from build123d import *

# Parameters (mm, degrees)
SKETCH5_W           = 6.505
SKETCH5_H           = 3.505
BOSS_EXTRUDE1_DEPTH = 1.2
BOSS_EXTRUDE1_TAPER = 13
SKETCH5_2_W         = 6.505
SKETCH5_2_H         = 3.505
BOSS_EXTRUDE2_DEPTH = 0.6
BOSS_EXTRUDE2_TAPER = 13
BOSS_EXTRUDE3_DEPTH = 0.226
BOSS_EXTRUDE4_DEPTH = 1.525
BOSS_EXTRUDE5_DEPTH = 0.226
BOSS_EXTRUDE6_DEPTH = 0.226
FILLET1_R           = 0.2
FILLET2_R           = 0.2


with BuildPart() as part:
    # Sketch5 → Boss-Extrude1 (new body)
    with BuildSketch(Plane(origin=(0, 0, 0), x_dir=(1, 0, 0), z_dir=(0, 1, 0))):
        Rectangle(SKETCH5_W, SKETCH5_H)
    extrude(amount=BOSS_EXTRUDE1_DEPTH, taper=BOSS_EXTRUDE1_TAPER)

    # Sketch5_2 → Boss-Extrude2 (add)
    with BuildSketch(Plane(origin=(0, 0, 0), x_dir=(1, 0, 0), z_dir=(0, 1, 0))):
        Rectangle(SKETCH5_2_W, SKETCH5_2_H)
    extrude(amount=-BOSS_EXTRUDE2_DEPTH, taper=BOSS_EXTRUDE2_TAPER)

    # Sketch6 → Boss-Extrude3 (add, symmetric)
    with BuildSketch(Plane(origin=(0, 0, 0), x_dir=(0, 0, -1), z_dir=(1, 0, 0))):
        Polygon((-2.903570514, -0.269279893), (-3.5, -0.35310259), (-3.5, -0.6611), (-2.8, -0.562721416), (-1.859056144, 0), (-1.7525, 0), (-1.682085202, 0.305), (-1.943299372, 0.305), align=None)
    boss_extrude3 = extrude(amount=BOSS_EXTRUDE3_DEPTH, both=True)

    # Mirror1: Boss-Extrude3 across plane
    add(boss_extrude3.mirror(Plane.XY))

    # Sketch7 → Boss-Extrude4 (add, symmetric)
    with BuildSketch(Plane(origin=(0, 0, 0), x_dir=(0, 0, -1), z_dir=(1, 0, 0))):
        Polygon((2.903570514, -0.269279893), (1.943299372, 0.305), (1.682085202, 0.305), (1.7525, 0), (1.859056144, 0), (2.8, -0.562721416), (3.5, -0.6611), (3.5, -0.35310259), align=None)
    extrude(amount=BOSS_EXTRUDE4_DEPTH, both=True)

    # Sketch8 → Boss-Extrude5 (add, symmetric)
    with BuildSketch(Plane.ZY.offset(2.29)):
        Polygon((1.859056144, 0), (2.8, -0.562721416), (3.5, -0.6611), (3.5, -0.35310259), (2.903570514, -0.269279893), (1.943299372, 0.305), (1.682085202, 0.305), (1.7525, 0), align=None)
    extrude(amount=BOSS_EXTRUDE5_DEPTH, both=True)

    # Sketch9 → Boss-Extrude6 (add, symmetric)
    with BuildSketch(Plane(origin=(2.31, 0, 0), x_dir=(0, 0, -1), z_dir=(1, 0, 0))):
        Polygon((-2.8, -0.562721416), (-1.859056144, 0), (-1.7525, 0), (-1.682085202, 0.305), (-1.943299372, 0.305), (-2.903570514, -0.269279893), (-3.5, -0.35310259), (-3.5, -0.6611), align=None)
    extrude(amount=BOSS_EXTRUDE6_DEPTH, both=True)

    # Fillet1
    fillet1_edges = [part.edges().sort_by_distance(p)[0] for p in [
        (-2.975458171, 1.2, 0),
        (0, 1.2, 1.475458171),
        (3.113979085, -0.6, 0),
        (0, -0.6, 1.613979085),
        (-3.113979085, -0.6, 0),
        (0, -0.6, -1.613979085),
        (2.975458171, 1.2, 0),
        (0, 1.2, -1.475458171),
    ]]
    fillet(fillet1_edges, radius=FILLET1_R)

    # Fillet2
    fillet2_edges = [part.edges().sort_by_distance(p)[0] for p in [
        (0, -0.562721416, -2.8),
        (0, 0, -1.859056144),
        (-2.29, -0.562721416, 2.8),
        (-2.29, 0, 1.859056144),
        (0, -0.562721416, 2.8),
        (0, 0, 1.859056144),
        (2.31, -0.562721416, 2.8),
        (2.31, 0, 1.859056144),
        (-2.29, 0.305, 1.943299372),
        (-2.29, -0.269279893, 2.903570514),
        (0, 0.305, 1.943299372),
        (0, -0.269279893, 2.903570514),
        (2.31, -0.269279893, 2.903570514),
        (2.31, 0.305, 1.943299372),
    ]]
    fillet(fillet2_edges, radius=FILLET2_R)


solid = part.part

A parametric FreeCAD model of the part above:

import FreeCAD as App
import Part
import Sketcher

V = App.Vector
Q = App.Units.Quantity


def edges_at(feature, points):
    """Names of the edges that pass closest to the given points."""
    edges = feature.Shape.Edges
    near = lambda p: min(range(len(edges)), key=lambda i: edges[i].distToShape(Part.Vertex(*p))[0])
    return sorted({f"Edge{near(p) + 1}" for p in points})

doc = App.newDocument("Part")
body = doc.addObject("PartDesign::Body", "Body")

sketch1 = body.newObject("Sketcher::SketchObject", "Sketch")
sketch1.AttachmentSupport = (doc.getObject("XZ_Plane"), [""])
sketch1.MapMode = "FlatFace"
sketch1.addGeometry(Part.LineSegment(V(-3.2525, -1.7525, 0), V(-3.2525, 1.7525, 0)), False)
sketch1.addGeometry(Part.LineSegment(V(-3.2525, 1.7525, 0), V(3.2525, 1.7525, 0)), False)
sketch1.addGeometry(Part.LineSegment(V(3.2525, 1.7525, 0), V(3.2525, -1.7525, 0)), False)
sketch1.addGeometry(Part.LineSegment(V(3.2525, -1.7525, 0), V(-3.2525, -1.7525, 0)), False)
sketch1.addConstraint(Sketcher.Constraint("Coincident", 0, 2, 1, 1))
sketch1.addConstraint(Sketcher.Constraint("Coincident", 1, 2, 2, 1))
sketch1.addConstraint(Sketcher.Constraint("Coincident", 2, 2, 3, 1))
sketch1.addConstraint(Sketcher.Constraint("Coincident", 3, 2, 0, 1))
sketch1.addConstraint(Sketcher.Constraint("Vertical", 0))
sketch1.addConstraint(Sketcher.Constraint("Horizontal", 1))
sketch1.addConstraint(Sketcher.Constraint("Vertical", 2))
sketch1.addConstraint(Sketcher.Constraint("Horizontal", 3))
sketch1.addConstraint(Sketcher.Constraint("Symmetric", 0, 2, 2, 2, -1, 1))
sketch1.addConstraint(Sketcher.Constraint("DistanceX", 1, 1, 1, 2, Q("6.505 mm")))
sketch1.addConstraint(Sketcher.Constraint("DistanceY", 0, 1, 0, 2, Q("3.505 mm")))
pad1 = body.newObject("PartDesign::Pad", "Pad")
pad1.Profile = sketch1
pad1.Length = 1.2
pad1.Reversed = True
pad1.TaperAngle = -13

sketch2 = body.newObject("Sketcher::SketchObject", "Sketch001")
sketch2.AttachmentSupport = (doc.getObject("XZ_Plane"), [""])
sketch2.MapMode = "FlatFace"
sketch2.addGeometry(Part.LineSegment(V(-3.2525, -1.7525, 0), V(-3.2525, 1.7525, 0)), False)
sketch2.addGeometry(Part.LineSegment(V(-3.2525, 1.7525, 0), V(3.2525, 1.7525, 0)), False)
sketch2.addGeometry(Part.LineSegment(V(3.2525, 1.7525, 0), V(3.2525, -1.7525, 0)), False)
sketch2.addGeometry(Part.LineSegment(V(3.2525, -1.7525, 0), V(-3.2525, -1.7525, 0)), False)
sketch2.addConstraint(Sketcher.Constraint("Coincident", 0, 2, 1, 1))
sketch2.addConstraint(Sketcher.Constraint("Coincident", 1, 2, 2, 1))
sketch2.addConstraint(Sketcher.Constraint("Coincident", 2, 2, 3, 1))
sketch2.addConstraint(Sketcher.Constraint("Coincident", 3, 2, 0, 1))
sketch2.addConstraint(Sketcher.Constraint("Vertical", 0))
sketch2.addConstraint(Sketcher.Constraint("Horizontal", 1))
sketch2.addConstraint(Sketcher.Constraint("Vertical", 2))
sketch2.addConstraint(Sketcher.Constraint("Horizontal", 3))
sketch2.addConstraint(Sketcher.Constraint("Symmetric", 0, 2, 2, 2, -1, 1))
sketch2.addConstraint(Sketcher.Constraint("DistanceX", 1, 1, 1, 2, Q("6.505 mm")))
sketch2.addConstraint(Sketcher.Constraint("DistanceY", 0, 1, 0, 2, Q("3.505 mm")))
pad2 = body.newObject("PartDesign::Pad", "Pad001")
pad2.Profile = sketch2
pad2.Length = 0.6
pad2.TaperAngle = -13

sketch3 = body.newObject("Sketcher::SketchObject", "Sketch002")
sketch3.AttachmentSupport = (doc.getObject("YZ_Plane"), [""])
sketch3.MapMode = "FlatFace"
sketch3.addGeometry(Part.LineSegment(V(-0.26928, 2.903571, 0), V(-0.353103, 3.5, 0)), False)
sketch3.addGeometry(Part.LineSegment(V(-0.353103, 3.5, 0), V(-0.6611, 3.5, 0)), False)
sketch3.addGeometry(Part.LineSegment(V(-0.6611, 3.5, 0), V(-0.562721, 2.8, 0)), False)
sketch3.addGeometry(Part.LineSegment(V(-0.562721, 2.8, 0), V(0, 1.859056, 0)), False)
sketch3.addGeometry(Part.LineSegment(V(0, 1.859056, 0), V(0, 1.7525, 0)), False)
sketch3.addGeometry(Part.LineSegment(V(0, 1.7525, 0), V(0.305, 1.682085, 0)), False)
sketch3.addGeometry(Part.LineSegment(V(0.305, 1.682085, 0), V(0.305, 1.943299, 0)), False)
sketch3.addGeometry(Part.LineSegment(V(0.305, 1.943299, 0), V(-0.26928, 2.903571, 0)), False)
sketch3.addConstraint(Sketcher.Constraint("Coincident", 0, 2, 1, 1))
sketch3.addConstraint(Sketcher.Constraint("Coincident", 1, 2, 2, 1))
sketch3.addConstraint(Sketcher.Constraint("Coincident", 2, 2, 3, 1))
sketch3.addConstraint(Sketcher.Constraint("Coincident", 3, 2, 4, 1))
sketch3.addConstraint(Sketcher.Constraint("Coincident", 4, 2, 5, 1))
sketch3.addConstraint(Sketcher.Constraint("Coincident", 5, 2, 6, 1))
sketch3.addConstraint(Sketcher.Constraint("Coincident", 6, 2, 7, 1))
sketch3.addConstraint(Sketcher.Constraint("Coincident", 7, 2, 0, 1))
sketch3.addConstraint(Sketcher.Constraint("Horizontal", 1))
sketch3.addConstraint(Sketcher.Constraint("Vertical", 4))
sketch3.addConstraint(Sketcher.Constraint("Vertical", 6))
sketch3.addConstraint(Sketcher.Constraint("PointOnObject", 3, 2, -2))
sketch3.addConstraint(Sketcher.Constraint("Parallel", 0, 2))
sketch3.addConstraint(Sketcher.Constraint("Parallel", 3, 7))
sketch3.addConstraint(Sketcher.Constraint("Angle", 0, Q("98 deg")))
sketch3.addConstraint(Sketcher.Constraint("Angle", 5, Q("-13 deg")))
sketch3.addConstraint(Sketcher.Constraint("DistanceY", -1, 1, 0, 2, Q("3.5 mm")))
sketch3.addConstraint(Sketcher.Constraint("DistanceY", -1, 1, 2, 2, Q("2.8 mm")))
sketch3.addConstraint(Sketcher.Constraint("DistanceX", -1, 1, 5, 2, Q("0.305 mm")))
sketch3.addConstraint(Sketcher.Constraint("DistanceX", 1, 2, -1, 1, Q("0.6611 mm")))
sketch3.addConstraint(Sketcher.Constraint("DistanceY", -1, 1, 4, 2, Q("1.7525 mm")))
sketch3.addConstraint(Sketcher.Constraint("DistanceY", -1, 1, 6, 2, Q("1.943299 mm")))
sketch3.addConstraint(Sketcher.Constraint("Distance", 0, Q("0.602291 mm")))
sketch3.addConstraint(Sketcher.Constraint("Distance", 3, Q("1.096372 mm")))
pad3 = body.newObject("PartDesign::Pad", "Pad002")
pad3.Profile = sketch3
pad3.Length = 0.452
pad3.Midplane = True
doc.recompute()

mirrored = body.newObject("PartDesign::Mirrored", "Mirrored")
mirrored.Originals = [pad3]
mirrored.MirrorPlane = (doc.getObject("XY_Plane"), [""])
body.Tip = mirrored

sketch4 = body.newObject("Sketcher::SketchObject", "Sketch003")
sketch4.AttachmentSupport = (doc.getObject("YZ_Plane"), [""])
sketch4.MapMode = "FlatFace"
sketch4.addGeometry(Part.LineSegment(V(-0.26928, -2.903571, 0), V(0.305, -1.943299, 0)), False)
sketch4.addGeometry(Part.LineSegment(V(0.305, -1.943299, 0), V(0.305, -1.682085, 0)), False)
sketch4.addGeometry(Part.LineSegment(V(0.305, -1.682085, 0), V(0, -1.7525, 0)), False)
sketch4.addGeometry(Part.LineSegment(V(0, -1.7525, 0), V(0, -1.859056, 0)), False)
sketch4.addGeometry(Part.LineSegment(V(0, -1.859056, 0), V(-0.562721, -2.8, 0)), False)
sketch4.addGeometry(Part.LineSegment(V(-0.562721, -2.8, 0), V(-0.6611, -3.5, 0)), False)
sketch4.addGeometry(Part.LineSegment(V(-0.6611, -3.5, 0), V(-0.353103, -3.5, 0)), False)
sketch4.addGeometry(Part.LineSegment(V(-0.353103, -3.5, 0), V(-0.26928, -2.903571, 0)), False)
sketch4.addConstraint(Sketcher.Constraint("Coincident", 0, 2, 1, 1))
sketch4.addConstraint(Sketcher.Constraint("Coincident", 1, 2, 2, 1))
sketch4.addConstraint(Sketcher.Constraint("Coincident", 2, 2, 3, 1))
sketch4.addConstraint(Sketcher.Constraint("Coincident", 3, 2, 4, 1))
sketch4.addConstraint(Sketcher.Constraint("Coincident", 4, 2, 5, 1))
sketch4.addConstraint(Sketcher.Constraint("Coincident", 5, 2, 6, 1))
sketch4.addConstraint(Sketcher.Constraint("Coincident", 6, 2, 7, 1))
sketch4.addConstraint(Sketcher.Constraint("Coincident", 7, 2, 0, 1))
sketch4.addConstraint(Sketcher.Constraint("Vertical", 1))
sketch4.addConstraint(Sketcher.Constraint("Vertical", 3))
sketch4.addConstraint(Sketcher.Constraint("Horizontal", 6))
sketch4.addConstraint(Sketcher.Constraint("PointOnObject", 2, 2, -2))
sketch4.addConstraint(Sketcher.Constraint("Parallel", 0, 4))
sketch4.addConstraint(Sketcher.Constraint("Parallel", 5, 7))
sketch4.addConstraint(Sketcher.Constraint("Angle", 2, Q("-167 deg")))
sketch4.addConstraint(Sketcher.Constraint("Angle", 5, Q("-98 deg")))
sketch4.addConstraint(Sketcher.Constraint("DistanceY", 4, 2, -1, 1, Q("2.8 mm")))
sketch4.addConstraint(Sketcher.Constraint("DistanceY", 5, 2, -1, 1, Q("3.5 mm")))
sketch4.addConstraint(Sketcher.Constraint("DistanceX", -1, 1, 0, 2, Q("0.305 mm")))
sketch4.addConstraint(Sketcher.Constraint("DistanceY", 0, 2, -1, 1, Q("1.943299 mm")))
sketch4.addConstraint(Sketcher.Constraint("DistanceY", 2, 2, -1, 1, Q("1.7525 mm")))
sketch4.addConstraint(Sketcher.Constraint("DistanceX", 5, 2, -1, 1, Q("0.6611 mm")))
sketch4.addConstraint(Sketcher.Constraint("Distance", 0, Q("1.118891 mm")))
sketch4.addConstraint(Sketcher.Constraint("Distance", 4, Q("1.096372 mm")))
pad4 = body.newObject("PartDesign::Pad", "Pad003")
pad4.Profile = sketch4
pad4.Length = 3.05
pad4.Midplane = True

sketch5 = body.newObject("Sketcher::SketchObject", "Sketch004")
sketch5.AttachmentSupport = (doc.getObject("YZ_Plane"), [""])
sketch5.MapMode = "FlatFace"
sketch5.AttachmentOffset = App.Placement(V(0, 0, -2.29), App.Rotation())
sketch5.addGeometry(Part.LineSegment(V(0, 1.859056, 0), V(-0.562721, 2.8, 0)), False)
sketch5.addGeometry(Part.LineSegment(V(-0.562721, 2.8, 0), V(-0.6611, 3.5, 0)), False)
sketch5.addGeometry(Part.LineSegment(V(-0.6611, 3.5, 0), V(-0.353103, 3.5, 0)), False)
sketch5.addGeometry(Part.LineSegment(V(-0.353103, 3.5, 0), V(-0.26928, 2.903571, 0)), False)
sketch5.addGeometry(Part.LineSegment(V(-0.26928, 2.903571, 0), V(0.305, 1.943299, 0)), False)
sketch5.addGeometry(Part.LineSegment(V(0.305, 1.943299, 0), V(0.305, 1.682085, 0)), False)
sketch5.addGeometry(Part.LineSegment(V(0.305, 1.682085, 0), V(0, 1.7525, 0)), False)
sketch5.addGeometry(Part.LineSegment(V(0, 1.7525, 0), V(0, 1.859056, 0)), False)
sketch5.addConstraint(Sketcher.Constraint("Coincident", 0, 2, 1, 1))
sketch5.addConstraint(Sketcher.Constraint("Coincident", 1, 2, 2, 1))
sketch5.addConstraint(Sketcher.Constraint("Coincident", 2, 2, 3, 1))
sketch5.addConstraint(Sketcher.Constraint("Coincident", 3, 2, 4, 1))
sketch5.addConstraint(Sketcher.Constraint("Coincident", 4, 2, 5, 1))
sketch5.addConstraint(Sketcher.Constraint("Coincident", 5, 2, 6, 1))
sketch5.addConstraint(Sketcher.Constraint("Coincident", 6, 2, 7, 1))
sketch5.addConstraint(Sketcher.Constraint("Coincident", 7, 2, 0, 1))
sketch5.addConstraint(Sketcher.Constraint("Horizontal", 2))
sketch5.addConstraint(Sketcher.Constraint("Vertical", 5))
sketch5.addConstraint(Sketcher.Constraint("Vertical", 7))
sketch5.addConstraint(Sketcher.Constraint("PointOnObject", 6, 2, -2))
sketch5.addConstraint(Sketcher.Constraint("Parallel", 1, 3))
sketch5.addConstraint(Sketcher.Constraint("Parallel", 0, 4))
sketch5.addConstraint(Sketcher.Constraint("Angle", 1, Q("98 deg")))
sketch5.addConstraint(Sketcher.Constraint("Angle", 6, Q("167 deg")))
sketch5.addConstraint(Sketcher.Constraint("DistanceY", -1, 1, 0, 2, Q("2.8 mm")))
sketch5.addConstraint(Sketcher.Constraint("DistanceY", -1, 1, 1, 2, Q("3.5 mm")))
sketch5.addConstraint(Sketcher.Constraint("DistanceX", -1, 1, 4, 2, Q("0.305 mm")))
sketch5.addConstraint(Sketcher.Constraint("DistanceX", 1, 2, -1, 1, Q("0.6611 mm")))
sketch5.addConstraint(Sketcher.Constraint("DistanceY", -1, 1, 4, 2, Q("1.943299 mm")))
sketch5.addConstraint(Sketcher.Constraint("DistanceY", -1, 1, 6, 2, Q("1.7525 mm")))
sketch5.addConstraint(Sketcher.Constraint("Distance", 0, Q("1.096372 mm")))
sketch5.addConstraint(Sketcher.Constraint("Distance", 3, Q("0.602291 mm")))
pad5 = body.newObject("PartDesign::Pad", "Pad004")
pad5.Profile = sketch5
pad5.Length = 0.452
pad5.Midplane = True

sketch6 = body.newObject("Sketcher::SketchObject", "Sketch005")
sketch6.AttachmentSupport = (doc.getObject("YZ_Plane"), [""])
sketch6.MapMode = "FlatFace"
sketch6.AttachmentOffset = App.Placement(V(0, 0, 2.31), App.Rotation())
sketch6.addGeometry(Part.LineSegment(V(-0.562721, 2.8, 0), V(0, 1.859056, 0)), False)
sketch6.addGeometry(Part.LineSegment(V(0, 1.859056, 0), V(0, 1.7525, 0)), False)
sketch6.addGeometry(Part.LineSegment(V(0, 1.7525, 0), V(0.305, 1.682085, 0)), False)
sketch6.addGeometry(Part.LineSegment(V(0.305, 1.682085, 0), V(0.305, 1.943299, 0)), False)
sketch6.addGeometry(Part.LineSegment(V(0.305, 1.943299, 0), V(-0.26928, 2.903571, 0)), False)
sketch6.addGeometry(Part.LineSegment(V(-0.26928, 2.903571, 0), V(-0.353103, 3.5, 0)), False)
sketch6.addGeometry(Part.LineSegment(V(-0.353103, 3.5, 0), V(-0.6611, 3.5, 0)), False)
sketch6.addGeometry(Part.LineSegment(V(-0.6611, 3.5, 0), V(-0.562721, 2.8, 0)), False)
sketch6.addConstraint(Sketcher.Constraint("Coincident", 0, 2, 1, 1))
sketch6.addConstraint(Sketcher.Constraint("Coincident", 1, 2, 2, 1))
sketch6.addConstraint(Sketcher.Constraint("Coincident", 2, 2, 3, 1))
sketch6.addConstraint(Sketcher.Constraint("Coincident", 3, 2, 4, 1))
sketch6.addConstraint(Sketcher.Constraint("Coincident", 4, 2, 5, 1))
sketch6.addConstraint(Sketcher.Constraint("Coincident", 5, 2, 6, 1))
sketch6.addConstraint(Sketcher.Constraint("Coincident", 6, 2, 7, 1))
sketch6.addConstraint(Sketcher.Constraint("Coincident", 7, 2, 0, 1))
sketch6.addConstraint(Sketcher.Constraint("Vertical", 1))
sketch6.addConstraint(Sketcher.Constraint("Vertical", 3))
sketch6.addConstraint(Sketcher.Constraint("Horizontal", 6))
sketch6.addConstraint(Sketcher.Constraint("PointOnObject", 0, 2, -2))
sketch6.addConstraint(Sketcher.Constraint("Parallel", 0, 4))
sketch6.addConstraint(Sketcher.Constraint("Parallel", 5, 7))
sketch6.addConstraint(Sketcher.Constraint("Angle", 2, Q("-13 deg")))
sketch6.addConstraint(Sketcher.Constraint("Angle", 5, Q("98 deg")))
sketch6.addConstraint(Sketcher.Constraint("DistanceY", -1, 1, 5, 2, Q("3.5 mm")))
sketch6.addConstraint(Sketcher.Constraint("DistanceY", -1, 1, 7, 2, Q("2.8 mm")))
sketch6.addConstraint(Sketcher.Constraint("DistanceX", -1, 1, 2, 2, Q("0.305 mm")))
sketch6.addConstraint(Sketcher.Constraint("DistanceY", -1, 1, 1, 2, Q("1.7525 mm")))
sketch6.addConstraint(Sketcher.Constraint("DistanceY", -1, 1, 3, 2, Q("1.943299 mm")))
sketch6.addConstraint(Sketcher.Constraint("DistanceX", 6, 2, -1, 1, Q("0.6611 mm")))
sketch6.addConstraint(Sketcher.Constraint("Distance", 0, Q("1.096372 mm")))
sketch6.addConstraint(Sketcher.Constraint("Distance", 4, Q("1.118891 mm")))
pad6 = body.newObject("PartDesign::Pad", "Pad005")
pad6.Profile = sketch6
pad6.Length = 0.452
pad6.Midplane = True
doc.recompute()

fillet = body.newObject("PartDesign::Fillet", "Fillet")
fillet.Base = (pad6, edges_at(pad6, [
    (-2.975, 1.2, 0),
    (0, 1.2, 1.475),
    (3.114, -0.6, 0),
    (0, -0.6, 1.614),
    (-3.114, -0.6, 0),
    (0, -0.6, -1.614),
    (2.975, 1.2, 0),
    (0, 1.2, -1.475),
]))
fillet.Radius = 0.2
doc.recompute()

fillet2 = body.newObject("PartDesign::Fillet", "Fillet001")
fillet2.Base = (fillet, edges_at(fillet, [
    (0, -0.563, -2.8),
    (0, 0, -1.859),
    (-2.29, -0.563, 2.8),
    (-2.29, 0, 1.859),
    (0, -0.563, 2.8),
    (0, 0, 1.859),
    (2.31, -0.563, 2.8),
    (2.31, 0, 1.859),
    (-2.29, 0.305, 1.943),
    (-2.29, -0.269, 2.904),
    (0, 0.305, 1.943),
    (0, -0.269, 2.904),
    (2.31, -0.269, 2.904),
    (2.31, 0.305, 1.943),
]))
fillet2.Radius = 0.2

doc.recompute()
